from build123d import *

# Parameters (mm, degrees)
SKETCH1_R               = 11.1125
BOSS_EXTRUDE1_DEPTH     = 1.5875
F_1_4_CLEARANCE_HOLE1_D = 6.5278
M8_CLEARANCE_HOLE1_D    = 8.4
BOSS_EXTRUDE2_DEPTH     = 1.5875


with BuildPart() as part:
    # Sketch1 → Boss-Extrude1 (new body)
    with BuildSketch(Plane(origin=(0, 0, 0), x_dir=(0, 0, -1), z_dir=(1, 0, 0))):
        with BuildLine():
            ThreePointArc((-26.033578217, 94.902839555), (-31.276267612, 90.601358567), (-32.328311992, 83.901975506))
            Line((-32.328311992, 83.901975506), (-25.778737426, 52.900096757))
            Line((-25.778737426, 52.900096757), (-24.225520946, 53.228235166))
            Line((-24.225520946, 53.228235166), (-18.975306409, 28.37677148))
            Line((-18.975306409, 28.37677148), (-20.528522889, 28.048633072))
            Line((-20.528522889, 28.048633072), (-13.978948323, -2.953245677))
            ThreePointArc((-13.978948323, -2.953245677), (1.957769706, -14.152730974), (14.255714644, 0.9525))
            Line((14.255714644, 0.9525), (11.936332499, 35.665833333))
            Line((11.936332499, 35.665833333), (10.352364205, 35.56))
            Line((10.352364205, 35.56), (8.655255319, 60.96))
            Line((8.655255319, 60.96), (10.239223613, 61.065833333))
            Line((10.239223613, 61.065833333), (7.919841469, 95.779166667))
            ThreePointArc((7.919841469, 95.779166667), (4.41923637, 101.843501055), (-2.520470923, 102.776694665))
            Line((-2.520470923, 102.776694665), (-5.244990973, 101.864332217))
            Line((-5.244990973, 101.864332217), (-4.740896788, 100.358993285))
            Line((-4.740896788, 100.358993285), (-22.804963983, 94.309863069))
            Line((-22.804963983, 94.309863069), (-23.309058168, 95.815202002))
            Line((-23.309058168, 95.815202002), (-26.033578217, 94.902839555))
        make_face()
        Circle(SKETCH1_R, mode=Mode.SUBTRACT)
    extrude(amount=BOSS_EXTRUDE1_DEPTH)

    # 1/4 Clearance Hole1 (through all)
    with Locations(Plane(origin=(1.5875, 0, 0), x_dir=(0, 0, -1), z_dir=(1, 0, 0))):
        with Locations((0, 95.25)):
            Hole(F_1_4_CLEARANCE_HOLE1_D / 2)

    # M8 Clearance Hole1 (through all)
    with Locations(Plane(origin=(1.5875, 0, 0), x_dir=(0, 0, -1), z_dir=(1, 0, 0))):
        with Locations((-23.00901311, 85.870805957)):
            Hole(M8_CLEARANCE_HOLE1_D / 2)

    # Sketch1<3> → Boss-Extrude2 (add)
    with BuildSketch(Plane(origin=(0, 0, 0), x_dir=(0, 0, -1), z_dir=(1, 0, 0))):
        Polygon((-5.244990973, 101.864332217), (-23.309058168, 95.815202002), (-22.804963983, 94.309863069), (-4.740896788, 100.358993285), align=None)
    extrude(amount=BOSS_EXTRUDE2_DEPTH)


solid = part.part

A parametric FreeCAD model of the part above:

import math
import FreeCAD as App
import Part
import Sketcher

V = App.Vector
Q = App.Units.Quantity

doc = App.newDocument("Part")
body = doc.addObject("PartDesign::Body", "Body")

# Sketch on YZ plane
sketch1 = body.newObject("Sketcher::SketchObject", "Sketch")
sketch1.AttachmentSupport = (doc.getObject("YZ_Plane"), [""])
sketch1.MapMode = "FlatFace"
sketch1.addGeometry([
    Part.ArcOfCircle(Part.Circle(V(85.870806, 23.009013, 0), V(0, 0, 1), 9.525), math.radians(18.514198), math.radians(101.929113)),  # 0
    Part.LineSegment(V(83.901976, 32.328312, 0), V(52.900097, 25.778737, 0)),  # 1
    Part.LineSegment(V(52.900097, 25.778737, 0), V(53.228235, 24.225521, 0)),  # 2
    Part.LineSegment(V(53.228235, 24.225521, 0), V(28.376771, 18.975306, 0)),  # 3
    Part.LineSegment(V(28.376771, 18.975306, 0), V(28.048633, 20.528523, 0)),  # 4
    Part.LineSegment(V(28.048633, 20.528523, 0), V(-2.953246, 13.978948, 0)),  # 5
    Part.ArcOfCircle(Part.Circle(V(0, 0, 0), V(0, 0, 1), 14.2875), math.radians(101.929113), math.radians(273.822554)),  # 6
    Part.LineSegment(V(0.9525, -14.255715, 0), V(35.665833, -11.936332, 0)),  # 7
    Part.LineSegment(V(35.665833, -11.936332, 0), V(35.56, -10.352364, 0)),  # 8
    Part.LineSegment(V(35.56, -10.352364, 0), V(60.96, -8.655255, 0)),  # 9
    Part.LineSegment(V(60.96, -8.655255, 0), V(61.065833, -10.239224, 0)),  # 10
    Part.LineSegment(V(61.065833, -10.239224, 0), V(95.779167, -7.919841, 0)),  # 11
    Part.ArcOfCircle(Part.Circle(V(95.25, 0, 0), V(0, 0, 1), 7.9375), math.radians(-86.177446), math.radians(18.514198)),  # 12
    Part.LineSegment(V(102.776695, 2.520471, 0), V(101.864332, 5.244991, 0)),  # 13
    Part.LineSegment(V(101.864332, 5.244991, 0), V(100.358993, 4.740897, 0)),  # 14
    Part.LineSegment(V(100.358993, 4.740897, 0), V(94.309863, 22.804964, 0)),  # 15
    Part.LineSegment(V(94.309863, 22.804964, 0), V(95.815202, 23.309058, 0)),  # 16
    Part.LineSegment(V(95.815202, 23.309058, 0), V(94.90284, 26.033578, 0)),  # 17
    Part.Circle(V(0, 0, 0), V(0, 0, 1), 11.1125),  # 18
], False)
sketch1.addConstraint([
    Sketcher.Constraint("Tangent", 0, 2, 1, 1),
    Sketcher.Constraint("Coincident", 1, 2, 2, 1),
    Sketcher.Constraint("Coincident", 2, 2, 3, 1),
    Sketcher.Constraint("Coincident", 3, 2, 4, 1),
    Sketcher.Constraint("Coincident", 4, 2, 5, 1),
    Sketcher.Constraint("Tangent", 5, 2, 6, 1),
    Sketcher.Constraint("Tangent", 6, 2, 7, 1),
    Sketcher.Constraint("Coincident", 7, 2, 8, 1),
    Sketcher.Constraint("Coincident", 8, 2, 9, 1),
    Sketcher.Constraint("Coincident", 9, 2, 10, 1),
    Sketcher.Constraint("Coincident", 10, 2, 11, 1),
    Sketcher.Constraint("Tangent", 11, 2, 12, 1),
    Sketcher.Constraint("Tangent", 12, 2, 13, 1),
    Sketcher.Constraint("Coincident", 13, 2, 14, 1),
    Sketcher.Constraint("Coincident", 14, 2, 15, 1),
    Sketcher.Constraint("Coincident", 15, 2, 16, 1),
    Sketcher.Constraint("Coincident", 16, 2, 17, 1),
    Sketcher.Constraint("Tangent", 17, 2, 0, 1),
    Sketcher.Constraint("Coincident", 6, 3, -1, 1),
    Sketcher.Constraint("Coincident", 18, 3, -1, 1),
    Sketcher.Constraint("PointOnObject", 12, 3, -1),
    Sketcher.Constraint("Perpendicular", 1, 2),
    Sketcher.Constraint("Perpendicular", 2, 3),
    Sketcher.Constraint("Perpendicular", 3, 4),
    Sketcher.Constraint("Perpendicular", 4, 5),
    Sketcher.Constraint("Perpendicular", 7, 8),
    Sketcher.Constraint("Perpendicular", 8, 9),
    Sketcher.Constraint("Perpendicular", 9, 10),
    Sketcher.Constraint("Perpendicular", 10, 11),
    Sketcher.Constraint("Perpendicular", 13, 14),
    Sketcher.Constraint("Perpendicular", 14, 15),
    Sketcher.Constraint("Perpendicular", 15, 16),
    Sketcher.Constraint("Perpendicular", 16, 17),
    Sketcher.Constraint("Equal", 2, 4),
    Sketcher.Constraint("Equal", 1, 5),
    Sketcher.Constraint("Equal", 4, 8),
    Sketcher.Constraint("Equal", 8, 10),
    Sketcher.Constraint("Equal", 7, 11),
    Sketcher.Constraint("Equal", 10, 14),
    Sketcher.Constraint("Equal", 14, 16),
    Sketcher.Constraint("Equal", 13, 17),
    Sketcher.Constraint("Distance", 3, Q("1 in")),
    Sketcher.Constraint("Diameter", 18, Q("0.875 in")),
    Sketcher.Constraint("Radius", 0, Q("0.375 in")),
    Sketcher.Constraint("Radius", 6, Q("0.5625 in")),
    Sketcher.Constraint("Radius", 12, Q("0.3125 in")),
    Sketcher.Constraint("DistanceX", 8, 2, 9, 2, Q("1 in")),
    Sketcher.Constraint("DistanceX", -1, 1, 8, 2, Q("1.4 in")),
    Sketcher.Constraint("Distance", 15, Q("0.75 in")),
    Sketcher.Constraint("DistanceX", -1, 1, 12, 3, Q("3.75 in")),
    Sketcher.Constraint("DistanceX", -1, 1, 2, 2, Q("2.0955998 in")),
    Sketcher.Constraint("DistanceY", 0, 3, 0, 2, 9.319299),
])
pad1 = body.newObject("PartDesign::Pad", "Pad")
pad1.Profile = sketch1
pad1.Length = Q("0.0625 in")

# Sketch on YZ plane
sketch2 = body.newObject("Sketcher::SketchObject", "Sketch001")
sketch2.AttachmentSupport = (doc.getObject("YZ_Plane"), [""])
sketch2.MapMode = "FlatFace"
sketch2.AttachmentOffset = App.Placement(V(0, 0, 0.0625 * 25.4), App.Rotation())
sketch2.addGeometry(Part.Circle(V(95.25, 0, 0), V(0, 0, 1), 3.2639), False)
sketch2.addConstraint([
    Sketcher.Constraint("PointOnObject", 0, 3, -1),
    Sketcher.Constraint("Diameter", 0, Q("0.257 in")),
    Sketcher.Constraint("DistanceX", -1, 1, 0, 3, Q("3.75 in")),
])
doc.recompute()
hole = body.newObject("PartDesign::Hole", "Hole")
hole.Profile = sketch2
hole.ThreadType = "None"
hole.Diameter = Q("0.257 in")
hole.DepthType = "ThroughAll"

# Sketch on YZ plane
sketch3 = body.newObject("Sketcher::SketchObject", "Sketch002")
sketch3.AttachmentSupport = (doc.getObject("YZ_Plane"), [""])
sketch3.MapMode = "FlatFace"
sketch3.AttachmentOffset = App.Placement(V(0, 0, 0.0625 * 25.4), App.Rotation())
sketch3.addGeometry(Part.Circle(V(85.870806, 23.009013, 0), V(0, 0, 1), 4.2), False)
sketch3.addConstraint([
    Sketcher.Constraint("Diameter", 0, 8.4),
    Sketcher.Constraint("DistanceX", -1, 1, 0, 3, 85.870806),
    Sketcher.Constraint("DistanceY", -1, 1, 0, 3, 23.009013),
])
doc.recompute()
hole2 = body.newObject("PartDesign::Hole", "Hole001")
hole2.Profile = sketch3
hole2.ThreadType = "None"
hole2.Diameter = 8.4
hole2.DepthType = "ThroughAll"

# Sketch on YZ plane
sketch4 = body.newObject("Sketcher::SketchObject", "Sketch003")
sketch4.AttachmentSupport = (doc.getObject("YZ_Plane"), [""])
sketch4.MapMode = "FlatFace"
sketch4.addGeometry([
    Part.LineSegment(V(101.864332, 5.244991, 0), V(95.815202, 23.309058, 0)),
    Part.LineSegment(V(95.815202, 23.309058, 0), V(94.309863, 22.804964, 0)),
    Part.LineSegment(V(94.309863, 22.804964, 0), V(100.358993, 4.740897, 0)),
    Part.LineSegment(V(100.358993, 4.740897, 0), V(101.864332, 5.244991, 0)),
], False)
sketch4.addConstraint([
    Sketcher.Constraint("Coincident", 0, 2, 1, 1),
    Sketcher.Constraint("Coincident", 1, 2, 2, 1),
    Sketcher.Constraint("Coincident", 2, 2, 3, 1),
    Sketcher.Constraint("Coincident", 3, 2, 0, 1),
    Sketcher.Constraint("Perpendicular", 0, 1),
    Sketcher.Constraint("Perpendicular", 1, 2),
    Sketcher.Constraint("Perpendicular", 2, 3),
    Sketcher.Constraint("Distance", 0, Q("0.75 in")),
    Sketcher.Constraint("Distance", 1, Q("0.0625 in")),
    Sketcher.Constraint("DistanceY", -1, 1, 0, 2, 23.309058),
    Sketcher.Constraint("DistanceY", -1, 1, 3, 2, 5.244991),
    Sketcher.Constraint("DistanceX", -1, 1, 0, 2, 95.815202),
])
pad2 = body.newObject("PartDesign::Pad", "Pad001")
pad2.Profile = sketch4
pad2.Length = Q("0.0625 in")

doc.recompute()
